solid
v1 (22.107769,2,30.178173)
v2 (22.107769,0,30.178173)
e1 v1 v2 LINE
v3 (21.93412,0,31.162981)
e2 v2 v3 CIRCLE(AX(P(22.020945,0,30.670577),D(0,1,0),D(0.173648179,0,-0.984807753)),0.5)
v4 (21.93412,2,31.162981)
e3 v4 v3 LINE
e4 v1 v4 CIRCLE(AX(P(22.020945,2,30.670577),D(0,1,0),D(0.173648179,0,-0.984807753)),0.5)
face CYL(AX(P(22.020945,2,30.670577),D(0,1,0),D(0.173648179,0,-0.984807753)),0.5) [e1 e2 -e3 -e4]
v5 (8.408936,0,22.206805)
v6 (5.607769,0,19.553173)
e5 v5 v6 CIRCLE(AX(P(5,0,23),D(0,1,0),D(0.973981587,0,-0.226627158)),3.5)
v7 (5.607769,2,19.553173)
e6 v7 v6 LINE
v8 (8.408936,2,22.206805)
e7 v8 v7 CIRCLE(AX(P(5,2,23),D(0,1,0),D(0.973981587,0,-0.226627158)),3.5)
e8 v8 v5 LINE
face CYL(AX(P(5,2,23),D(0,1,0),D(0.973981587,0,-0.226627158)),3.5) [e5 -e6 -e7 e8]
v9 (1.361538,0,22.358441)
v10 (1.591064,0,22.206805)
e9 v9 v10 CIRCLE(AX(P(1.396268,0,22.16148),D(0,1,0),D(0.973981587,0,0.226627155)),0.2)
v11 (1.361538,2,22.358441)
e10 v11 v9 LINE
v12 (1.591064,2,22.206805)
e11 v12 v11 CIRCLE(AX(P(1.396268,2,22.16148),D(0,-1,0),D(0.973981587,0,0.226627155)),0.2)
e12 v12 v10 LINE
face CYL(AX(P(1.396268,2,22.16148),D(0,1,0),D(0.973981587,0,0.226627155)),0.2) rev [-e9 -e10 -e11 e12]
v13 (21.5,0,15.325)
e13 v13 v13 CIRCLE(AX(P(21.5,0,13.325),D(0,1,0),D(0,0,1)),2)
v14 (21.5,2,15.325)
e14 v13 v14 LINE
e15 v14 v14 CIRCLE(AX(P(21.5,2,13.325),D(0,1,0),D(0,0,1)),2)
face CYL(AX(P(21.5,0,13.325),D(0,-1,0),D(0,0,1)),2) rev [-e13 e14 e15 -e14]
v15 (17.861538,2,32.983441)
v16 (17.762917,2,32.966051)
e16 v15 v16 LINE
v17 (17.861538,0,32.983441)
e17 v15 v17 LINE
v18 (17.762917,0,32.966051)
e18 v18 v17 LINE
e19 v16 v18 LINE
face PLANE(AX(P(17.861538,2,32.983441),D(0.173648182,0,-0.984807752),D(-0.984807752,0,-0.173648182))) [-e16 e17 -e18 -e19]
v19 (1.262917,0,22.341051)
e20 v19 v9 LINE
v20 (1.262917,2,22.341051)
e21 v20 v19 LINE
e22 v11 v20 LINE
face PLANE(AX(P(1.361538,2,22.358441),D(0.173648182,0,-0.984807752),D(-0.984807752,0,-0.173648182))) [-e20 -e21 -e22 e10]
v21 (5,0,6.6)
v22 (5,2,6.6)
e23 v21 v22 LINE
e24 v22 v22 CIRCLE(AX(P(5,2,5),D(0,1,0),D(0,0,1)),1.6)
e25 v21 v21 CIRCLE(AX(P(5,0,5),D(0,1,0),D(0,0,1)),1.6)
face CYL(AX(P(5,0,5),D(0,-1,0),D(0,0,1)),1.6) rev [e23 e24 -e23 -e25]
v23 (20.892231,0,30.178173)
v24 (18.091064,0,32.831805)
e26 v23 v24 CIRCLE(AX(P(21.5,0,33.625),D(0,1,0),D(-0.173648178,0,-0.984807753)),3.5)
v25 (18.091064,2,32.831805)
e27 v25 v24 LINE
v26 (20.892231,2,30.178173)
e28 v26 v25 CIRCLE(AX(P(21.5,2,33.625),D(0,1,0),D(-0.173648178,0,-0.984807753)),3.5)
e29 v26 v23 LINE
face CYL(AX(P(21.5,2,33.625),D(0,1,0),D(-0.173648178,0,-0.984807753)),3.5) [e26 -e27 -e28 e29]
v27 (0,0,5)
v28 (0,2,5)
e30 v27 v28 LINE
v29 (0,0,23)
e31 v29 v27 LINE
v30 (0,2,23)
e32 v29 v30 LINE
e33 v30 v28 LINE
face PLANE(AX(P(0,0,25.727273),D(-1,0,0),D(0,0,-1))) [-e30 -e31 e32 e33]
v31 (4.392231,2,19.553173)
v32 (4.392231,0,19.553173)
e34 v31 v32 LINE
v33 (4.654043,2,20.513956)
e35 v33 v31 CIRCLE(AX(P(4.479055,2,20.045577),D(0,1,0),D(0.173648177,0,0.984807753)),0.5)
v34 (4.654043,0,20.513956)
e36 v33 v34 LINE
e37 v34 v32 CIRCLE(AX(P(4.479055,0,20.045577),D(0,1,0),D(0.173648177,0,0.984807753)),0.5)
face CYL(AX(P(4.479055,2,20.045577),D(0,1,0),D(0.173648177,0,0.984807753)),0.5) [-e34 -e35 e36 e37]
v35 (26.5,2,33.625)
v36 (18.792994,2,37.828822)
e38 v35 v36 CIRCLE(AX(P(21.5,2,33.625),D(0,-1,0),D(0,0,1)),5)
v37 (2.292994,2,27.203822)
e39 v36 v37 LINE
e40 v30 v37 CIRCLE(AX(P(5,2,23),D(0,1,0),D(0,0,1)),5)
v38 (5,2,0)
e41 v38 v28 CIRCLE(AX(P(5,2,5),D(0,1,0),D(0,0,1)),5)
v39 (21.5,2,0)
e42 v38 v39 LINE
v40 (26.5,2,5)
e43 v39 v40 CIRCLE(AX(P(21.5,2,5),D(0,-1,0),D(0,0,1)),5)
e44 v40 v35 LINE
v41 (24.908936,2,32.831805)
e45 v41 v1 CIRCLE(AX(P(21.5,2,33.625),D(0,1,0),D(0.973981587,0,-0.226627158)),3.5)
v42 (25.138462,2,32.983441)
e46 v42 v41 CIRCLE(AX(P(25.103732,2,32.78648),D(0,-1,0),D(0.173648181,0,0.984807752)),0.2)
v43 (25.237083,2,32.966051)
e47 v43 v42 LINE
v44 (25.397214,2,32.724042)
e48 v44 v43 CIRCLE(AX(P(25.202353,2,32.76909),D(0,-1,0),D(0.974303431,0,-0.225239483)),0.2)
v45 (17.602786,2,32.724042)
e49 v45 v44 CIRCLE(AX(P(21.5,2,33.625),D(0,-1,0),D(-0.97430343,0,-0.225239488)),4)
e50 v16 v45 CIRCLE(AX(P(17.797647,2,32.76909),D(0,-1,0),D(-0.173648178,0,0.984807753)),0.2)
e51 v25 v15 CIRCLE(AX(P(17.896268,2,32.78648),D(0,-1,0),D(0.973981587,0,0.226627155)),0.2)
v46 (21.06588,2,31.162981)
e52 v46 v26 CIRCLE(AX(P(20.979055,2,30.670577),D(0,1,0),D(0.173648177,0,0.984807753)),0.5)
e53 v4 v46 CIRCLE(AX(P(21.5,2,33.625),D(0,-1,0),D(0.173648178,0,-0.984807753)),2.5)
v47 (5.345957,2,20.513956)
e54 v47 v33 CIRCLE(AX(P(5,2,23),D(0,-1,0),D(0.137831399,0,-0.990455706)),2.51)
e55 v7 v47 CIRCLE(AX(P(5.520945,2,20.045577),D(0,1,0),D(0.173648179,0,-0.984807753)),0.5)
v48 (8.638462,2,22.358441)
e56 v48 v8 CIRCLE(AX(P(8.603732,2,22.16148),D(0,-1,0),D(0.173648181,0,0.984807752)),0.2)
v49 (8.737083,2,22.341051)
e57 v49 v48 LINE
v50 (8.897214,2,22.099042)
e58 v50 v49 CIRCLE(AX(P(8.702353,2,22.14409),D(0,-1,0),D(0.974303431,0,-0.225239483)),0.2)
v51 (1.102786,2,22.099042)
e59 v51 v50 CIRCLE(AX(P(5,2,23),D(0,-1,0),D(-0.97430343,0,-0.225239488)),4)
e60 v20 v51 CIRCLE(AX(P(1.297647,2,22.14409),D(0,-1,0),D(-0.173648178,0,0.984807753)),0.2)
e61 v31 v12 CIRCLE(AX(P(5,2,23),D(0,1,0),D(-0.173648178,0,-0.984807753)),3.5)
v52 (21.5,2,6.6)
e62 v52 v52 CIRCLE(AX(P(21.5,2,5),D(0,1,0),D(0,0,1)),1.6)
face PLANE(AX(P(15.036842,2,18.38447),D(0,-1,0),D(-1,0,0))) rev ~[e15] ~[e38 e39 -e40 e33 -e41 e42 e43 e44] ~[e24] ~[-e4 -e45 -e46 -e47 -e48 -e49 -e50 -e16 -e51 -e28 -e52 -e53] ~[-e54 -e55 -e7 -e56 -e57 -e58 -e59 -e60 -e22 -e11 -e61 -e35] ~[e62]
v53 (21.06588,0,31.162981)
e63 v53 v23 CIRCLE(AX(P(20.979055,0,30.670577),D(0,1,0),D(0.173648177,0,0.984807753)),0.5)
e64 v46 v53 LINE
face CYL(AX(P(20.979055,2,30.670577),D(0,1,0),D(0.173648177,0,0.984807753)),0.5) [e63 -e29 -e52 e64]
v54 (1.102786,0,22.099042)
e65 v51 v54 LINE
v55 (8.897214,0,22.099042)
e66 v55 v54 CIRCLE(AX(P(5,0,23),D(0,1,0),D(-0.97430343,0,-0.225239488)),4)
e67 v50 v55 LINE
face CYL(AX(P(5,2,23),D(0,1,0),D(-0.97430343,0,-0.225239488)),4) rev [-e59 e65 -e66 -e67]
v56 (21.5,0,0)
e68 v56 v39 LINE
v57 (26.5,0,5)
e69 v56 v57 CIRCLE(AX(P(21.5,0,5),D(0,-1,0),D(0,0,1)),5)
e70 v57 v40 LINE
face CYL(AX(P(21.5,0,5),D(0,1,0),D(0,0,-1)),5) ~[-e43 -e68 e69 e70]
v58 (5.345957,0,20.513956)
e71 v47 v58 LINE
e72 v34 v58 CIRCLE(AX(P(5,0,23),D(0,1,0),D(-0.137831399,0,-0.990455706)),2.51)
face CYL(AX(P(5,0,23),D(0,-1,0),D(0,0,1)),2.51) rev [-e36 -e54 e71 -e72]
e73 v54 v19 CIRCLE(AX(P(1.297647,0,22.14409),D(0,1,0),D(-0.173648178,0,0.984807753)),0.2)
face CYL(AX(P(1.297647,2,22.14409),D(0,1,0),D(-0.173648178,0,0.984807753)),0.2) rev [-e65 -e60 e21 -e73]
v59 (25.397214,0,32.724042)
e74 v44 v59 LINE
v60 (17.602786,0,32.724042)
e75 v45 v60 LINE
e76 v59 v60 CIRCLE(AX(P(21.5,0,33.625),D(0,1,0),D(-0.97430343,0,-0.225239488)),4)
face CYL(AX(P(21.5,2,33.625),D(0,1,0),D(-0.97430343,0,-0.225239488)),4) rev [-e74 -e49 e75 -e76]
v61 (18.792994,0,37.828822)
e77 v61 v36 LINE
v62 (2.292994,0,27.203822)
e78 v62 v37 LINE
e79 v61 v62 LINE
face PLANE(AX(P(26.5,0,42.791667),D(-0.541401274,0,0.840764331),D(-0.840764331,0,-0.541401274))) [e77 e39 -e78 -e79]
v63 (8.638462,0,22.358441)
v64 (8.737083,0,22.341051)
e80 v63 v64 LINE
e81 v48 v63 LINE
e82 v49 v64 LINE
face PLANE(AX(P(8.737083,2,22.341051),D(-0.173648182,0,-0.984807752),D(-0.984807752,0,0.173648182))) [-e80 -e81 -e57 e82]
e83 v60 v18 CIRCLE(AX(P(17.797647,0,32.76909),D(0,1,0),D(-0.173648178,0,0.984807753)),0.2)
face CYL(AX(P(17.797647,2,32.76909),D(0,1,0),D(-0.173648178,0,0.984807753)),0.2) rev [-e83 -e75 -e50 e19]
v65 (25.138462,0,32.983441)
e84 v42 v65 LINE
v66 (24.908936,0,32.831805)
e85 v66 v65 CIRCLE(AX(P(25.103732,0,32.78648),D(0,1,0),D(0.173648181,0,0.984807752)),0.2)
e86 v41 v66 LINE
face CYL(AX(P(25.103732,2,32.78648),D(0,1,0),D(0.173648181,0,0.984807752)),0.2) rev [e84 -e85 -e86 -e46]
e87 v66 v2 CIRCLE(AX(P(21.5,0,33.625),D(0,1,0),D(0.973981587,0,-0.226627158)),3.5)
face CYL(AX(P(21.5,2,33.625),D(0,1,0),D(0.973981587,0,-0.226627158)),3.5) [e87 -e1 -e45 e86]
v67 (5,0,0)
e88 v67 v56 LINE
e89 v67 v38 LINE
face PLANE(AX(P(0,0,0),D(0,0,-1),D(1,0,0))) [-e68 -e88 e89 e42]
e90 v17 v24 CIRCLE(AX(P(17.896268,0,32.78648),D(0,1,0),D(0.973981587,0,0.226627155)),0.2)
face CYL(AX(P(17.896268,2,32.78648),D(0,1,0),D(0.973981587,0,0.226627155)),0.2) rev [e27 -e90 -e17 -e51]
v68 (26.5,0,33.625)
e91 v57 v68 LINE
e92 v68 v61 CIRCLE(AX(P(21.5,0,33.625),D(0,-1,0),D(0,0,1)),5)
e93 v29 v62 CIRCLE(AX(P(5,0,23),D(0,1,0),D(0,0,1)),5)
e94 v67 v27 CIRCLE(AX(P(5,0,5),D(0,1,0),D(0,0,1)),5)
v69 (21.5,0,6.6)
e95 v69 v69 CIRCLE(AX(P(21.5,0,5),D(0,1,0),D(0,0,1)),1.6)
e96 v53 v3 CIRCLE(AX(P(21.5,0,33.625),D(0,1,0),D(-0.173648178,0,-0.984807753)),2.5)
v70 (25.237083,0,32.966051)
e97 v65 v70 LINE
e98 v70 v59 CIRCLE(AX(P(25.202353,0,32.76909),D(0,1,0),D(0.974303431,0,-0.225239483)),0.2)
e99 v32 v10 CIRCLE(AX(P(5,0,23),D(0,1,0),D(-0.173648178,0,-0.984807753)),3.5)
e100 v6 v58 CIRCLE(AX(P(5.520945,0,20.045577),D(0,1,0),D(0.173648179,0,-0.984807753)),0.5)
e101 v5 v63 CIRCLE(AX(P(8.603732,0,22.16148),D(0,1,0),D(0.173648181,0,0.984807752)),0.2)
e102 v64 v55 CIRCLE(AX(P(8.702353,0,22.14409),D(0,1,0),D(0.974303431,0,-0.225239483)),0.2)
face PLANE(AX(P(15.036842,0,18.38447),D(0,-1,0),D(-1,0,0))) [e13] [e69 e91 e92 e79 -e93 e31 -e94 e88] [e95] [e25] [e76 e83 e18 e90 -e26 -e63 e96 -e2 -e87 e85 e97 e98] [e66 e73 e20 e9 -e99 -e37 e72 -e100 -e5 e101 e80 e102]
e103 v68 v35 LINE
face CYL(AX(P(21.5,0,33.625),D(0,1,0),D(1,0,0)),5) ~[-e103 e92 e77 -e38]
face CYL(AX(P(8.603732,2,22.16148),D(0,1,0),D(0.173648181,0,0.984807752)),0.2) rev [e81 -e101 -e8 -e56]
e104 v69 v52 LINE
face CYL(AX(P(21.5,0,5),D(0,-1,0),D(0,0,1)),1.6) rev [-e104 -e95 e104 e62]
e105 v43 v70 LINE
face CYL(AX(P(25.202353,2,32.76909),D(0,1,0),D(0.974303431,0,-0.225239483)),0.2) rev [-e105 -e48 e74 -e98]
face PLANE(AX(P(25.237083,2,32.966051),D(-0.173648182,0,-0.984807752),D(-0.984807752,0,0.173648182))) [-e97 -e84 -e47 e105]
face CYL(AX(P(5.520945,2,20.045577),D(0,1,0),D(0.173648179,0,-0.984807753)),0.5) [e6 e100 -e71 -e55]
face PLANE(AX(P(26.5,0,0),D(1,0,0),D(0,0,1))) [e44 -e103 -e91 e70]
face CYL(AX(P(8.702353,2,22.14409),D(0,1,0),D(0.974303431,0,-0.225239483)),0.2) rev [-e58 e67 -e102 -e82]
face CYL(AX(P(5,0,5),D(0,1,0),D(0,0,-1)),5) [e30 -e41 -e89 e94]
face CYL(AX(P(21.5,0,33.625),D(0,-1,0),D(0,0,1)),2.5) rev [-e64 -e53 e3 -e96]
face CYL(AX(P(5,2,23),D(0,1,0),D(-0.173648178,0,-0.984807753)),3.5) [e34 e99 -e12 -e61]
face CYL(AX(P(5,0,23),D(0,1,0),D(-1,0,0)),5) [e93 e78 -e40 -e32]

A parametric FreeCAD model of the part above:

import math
import FreeCAD as App
import Part
import Sketcher
Q = App.Units.Quantity


def edges_at(feature, points):
    """Names of the edges that pass closest to the given points."""
    edges = feature.Shape.Edges
    near = lambda p: min(range(len(edges)), key=lambda i: edges[i].distToShape(Part.Vertex(*p))[0])
    return sorted({f"Edge{near(p) + 1}" for p in points})


def add_polygon(sketch, points):
    """Adds a closed chain of lines whose ends are joined by coincident constraints."""
    first, n = sketch.GeometryCount, len(points)
    for a, b in zip(points, points[1:] + points[:1]):
        sketch.addGeometry(Part.LineSegment(App.Vector(*a, 0), App.Vector(*b, 0)), False)
    for i in range(n):
        sketch.addConstraint(Sketcher.Constraint("Coincident", first + i, 2, first + (i + 1) % n, 1))

doc = App.newDocument("Part")
body = doc.addObject("PartDesign::Body", "Body")

sketch1 = body.newObject("Sketcher::SketchObject", "Sketch")
sketch1.AttachmentSupport = (doc.getObject("XZ_Plane"), [""])
sketch1.MapMode = "FlatFace"
add_polygon(sketch1, [(26.5, 0), (0, 0), (0, 25.7), (26.5, 42.8)])
sketch1.addGeometry(Part.Circle(App.Vector(21.5, 33.6, 0), App.Vector(0, 0, 1), 2.5), False)
sketch1.addGeometry(Part.Circle(App.Vector(5, 23, 0), App.Vector(0, 0, 1), 2.5), False)
sketch1.addGeometry(Part.Circle(App.Vector(21.5, 13.3, 0), App.Vector(0, 0, 1), 2), False)
sketch1.addGeometry(Part.Circle(App.Vector(21.5, 5, 0), App.Vector(0, 0, 1), 1.6), False)
sketch1.addGeometry(Part.Circle(App.Vector(5, 5, 0), App.Vector(0, 0, 1), 1.6), False)
sketch1.addConstraint([
    Sketcher.Constraint("Horizontal", 0),
    Sketcher.Constraint("Vertical", 1),
    Sketcher.Constraint("Vertical", 3),
    Sketcher.Constraint("Coincident", 0, 2, -1, 1),
    Sketcher.Constraint("Equal", 7, 8),
    Sketcher.Constraint("Horizontal", 7, 3, 8, 3),
    Sketcher.Constraint("Vertical", 4, 3, 6, 3),
    Sketcher.Constraint("Vertical", 6, 3, 7, 3),
    Sketcher.Constraint("Vertical", 5, 3, 8, 3),
    Sketcher.Constraint("Diameter", 4, 5.0),
    Sketcher.Constraint("Diameter", 6, 4.0),
    Sketcher.Constraint("Diameter", 7, 3.2),
    Sketcher.Constraint("Diameter", 5, 5.02),
    Sketcher.Constraint("DistanceX", 0, 2, 0, 1, 26.5),
    Sketcher.Constraint("DistanceX", -1, 1, 5, 3, 5.0),
    Sketcher.Constraint("DistanceY", -1, 1, 5, 3, 23.0),
    Sketcher.Constraint("DistanceY", -1, 1, 7, 3, 5.0),
    Sketcher.Constraint("DistanceX", 4, 3, 2, 2, 5.0),
    Sketcher.Constraint("DistanceY", 6, 3, 4, 3, 20.3),
    Sketcher.Constraint("DistanceY", -1, 1, 4, 3, 33.625),
    Sketcher.Constraint("Distance", 2, 31.518939),
    Sketcher.Constraint("DistanceY", 1, 1, 1, 2, 25.727273),
])
pad1 = body.newObject("PartDesign::Pad", "Pad")
pad1.Profile = sketch1
pad1.Length = 2
pad1.Reversed = True
doc.recompute()

fillet = body.newObject("PartDesign::Fillet", "Fillet")
fillet.Base = (pad1, edges_at(pad1, [
    (0, 1, 0),
    (26.5, 1, 0),
    (26.5, 1, 42.792),
    (0, 1, 25.727),
]))
fillet.Radius = 5

sketch2 = body.newObject("Sketcher::SketchObject", "Sketch001")
sketch2.AttachmentSupport = (doc.getObject("XZ_Plane"), [""])
sketch2.MapMode = "FlatFace"
sketch2.AttachmentOffset = App.Placement(App.Vector(0, 0, -2), App.Rotation())
sketch2.addGeometry([
    Part.LineSegment(App.Vector(17.76, 32.97, 0), App.Vector(17.86, 32.98, 0)),
    Part.ArcOfCircle(Part.Circle(App.Vector(17.9, 32.79, 0), App.Vector(0, 0, 1), 0.2), math.radians(13), math.radians(100)),
    Part.ArcOfCircle(Part.Circle(App.Vector(21.5, 33.63, 0), App.Vector(0, 0, 1), 3.5), math.radians(-167), math.radians(-100)),
    Part.ArcOfCircle(Part.Circle(App.Vector(20.98, 30.67, 0), App.Vector(0, 0, 1), 0.5), math.radians(-100), math.radians(80)),
    Part.ArcOfCircle(Part.Circle(App.Vector(21.5, 33.63, 0), App.Vector(0, 0, 1), 2.5), math.radians(-100), math.radians(-80)),
    Part.ArcOfCircle(Part.Circle(App.Vector(22.02, 30.67, 0), App.Vector(0, 0, 1), 0.5), math.radians(100), math.radians(280)),
    Part.ArcOfCircle(Part.Circle(App.Vector(21.5, 33.63, 0), App.Vector(0, 0, 1), 3.5), math.radians(-80), math.radians(-13)),
    Part.ArcOfCircle(Part.Circle(App.Vector(25.1, 32.79, 0), App.Vector(0, 0, 1), 0.2), math.radians(80), math.radians(167)),
    Part.LineSegment(App.Vector(25.14, 32.98, 0), App.Vector(25.24, 32.97, 0)),
    Part.ArcOfCircle(Part.Circle(App.Vector(25.2, 32.77, 0), App.Vector(0, 0, 1), 0.2), math.radians(-13), math.radians(80)),
    Part.ArcOfCircle(Part.Circle(App.Vector(21.5, 33.62, 0), App.Vector(0, 0, 1), 4), math.radians(-167), math.radians(-13)),
    Part.ArcOfCircle(Part.Circle(App.Vector(17.8, 32.77, 0), App.Vector(0, 0, 1), 0.2), math.radians(100), math.radians(193)),
    Part.LineSegment(App.Vector(1.26, 22.34, 0), App.Vector(1.36, 22.36, 0)),
    Part.ArcOfCircle(Part.Circle(App.Vector(1.4, 22.16, 0), App.Vector(0, 0, 1), 0.2), math.radians(13), math.radians(100)),
    Part.ArcOfCircle(Part.Circle(App.Vector(5, 23, 0), App.Vector(0, 0, 1), 3.5), math.radians(-167), math.radians(-100)),
    Part.ArcOfCircle(Part.Circle(App.Vector(4.48, 20.05, 0), App.Vector(0, 0, 1), 0.5), math.radians(-100), math.radians(80)),
    Part.ArcOfCircle(Part.Circle(App.Vector(5, 23, 0), App.Vector(0, 0, 1), 2.5), math.radians(-100), math.radians(-80)),
    Part.ArcOfCircle(Part.Circle(App.Vector(5.52, 20.05, 0), App.Vector(0, 0, 1), 0.5), math.radians(100), math.radians(280)),
    Part.ArcOfCircle(Part.Circle(App.Vector(5, 23, 0), App.Vector(0, 0, 1), 3.5), math.radians(-80), math.radians(-13)),
    Part.ArcOfCircle(Part.Circle(App.Vector(8.6, 22.16, 0), App.Vector(0, 0, 1), 0.2), math.radians(80), math.radians(167)),
    Part.LineSegment(App.Vector(8.64, 22.36, 0), App.Vector(8.74, 22.34, 0)),
    Part.ArcOfCircle(Part.Circle(App.Vector(8.7, 22.14, 0), App.Vector(0, 0, 1), 0.2), math.radians(-13), math.radians(80)),
    Part.ArcOfCircle(Part.Circle(App.Vector(5, 23, 0), App.Vector(0, 0, 1), 4), math.radians(-167), math.radians(-13)),
    Part.ArcOfCircle(Part.Circle(App.Vector(1.3, 22.14, 0), App.Vector(0, 0, 1), 0.2), math.radians(100), math.radians(193)),
], False)
sketch2.addConstraint([
    Sketcher.Constraint("Tangent", 0, 2, 1, 2),
    Sketcher.Constraint("Tangent", 1, 1, 2, 1),
    Sketcher.Constraint("Tangent", 2, 2, 3, 1),
    Sketcher.Constraint("Tangent", 3, 2, 4, 1),
    Sketcher.Constraint("Tangent", 4, 2, 5, 1),
    Sketcher.Constraint("Tangent", 5, 2, 6, 1),
    Sketcher.Constraint("Tangent", 6, 2, 7, 2),
    Sketcher.Constraint("Tangent", 7, 1, 8, 1),
    Sketcher.Constraint("Tangent", 8, 2, 9, 2),
    Sketcher.Constraint("Tangent", 9, 1, 10, 2),
    Sketcher.Constraint("Tangent", 10, 1, 11, 2),
    Sketcher.Constraint("Tangent", 11, 1, 0, 1),
    Sketcher.Constraint("Tangent", 12, 2, 13, 2),
    Sketcher.Constraint("Tangent", 13, 1, 14, 1),
    Sketcher.Constraint("Tangent", 14, 2, 15, 1),
    Sketcher.Constraint("Tangent", 15, 2, 16, 1),
    Sketcher.Constraint("Tangent", 16, 2, 17, 1),
    Sketcher.Constraint("Tangent", 17, 2, 18, 1),
    Sketcher.Constraint("Tangent", 18, 2, 19, 2),
    Sketcher.Constraint("Tangent", 19, 1, 20, 1),
    Sketcher.Constraint("Tangent", 20, 2, 21, 2),
    Sketcher.Constraint("Tangent", 21, 1, 22, 2),
    Sketcher.Constraint("Tangent", 22, 1, 23, 2),
    Sketcher.Constraint("Tangent", 23, 1, 12, 1),
    Sketcher.Constraint("Coincident", 4, 3, 2, 3),
    Sketcher.Constraint("Coincident", 6, 3, 2, 3),
    Sketcher.Constraint("Coincident", 10, 3, 2, 3),
    Sketcher.Constraint("Coincident", 16, 3, 14, 3),
    Sketcher.Constraint("Coincident", 18, 3, 14, 3),
    Sketcher.Constraint("Coincident", 22, 3, 14, 3),
    Sketcher.Constraint("Equal", 3, 5),
    Sketcher.Constraint("Equal", 1, 7),
    Sketcher.Constraint("Equal", 7, 9),
    Sketcher.Constraint("Equal", 9, 11),
    Sketcher.Constraint("Equal", 11, 13),
    Sketcher.Constraint("Equal", 6, 14),
    Sketcher.Constraint("Equal", 5, 15),
    Sketcher.Constraint("Equal", 15, 17),
    Sketcher.Constraint("Equal", 13, 19),
    Sketcher.Constraint("Equal", 19, 21),
    Sketcher.Constraint("Equal", 10, 22),
    Sketcher.Constraint("Equal", 21, 23),
    Sketcher.Constraint("Parallel", 0, 12),
    Sketcher.Constraint("Parallel", 8, 20),
    Sketcher.Constraint("Horizontal", 3, 3, 5, 3),
    Sketcher.Constraint("Horizontal", 1, 3, 7, 3),
    Sketcher.Constraint("Horizontal", 9, 3, 11, 3),
    Sketcher.Constraint("Horizontal", 15, 3, 17, 3),
    Sketcher.Constraint("Horizontal", 13, 3, 19, 3),
    Sketcher.Constraint("Radius", 10, 4.0),
    Sketcher.Constraint("Radius", 1, 0.2),
    Sketcher.Constraint("Radius", 2, 3.5),
    Sketcher.Constraint("Radius", 3, 0.5),
    Sketcher.Constraint("Angle", 0, Q("10 deg")),
    Sketcher.Constraint("DistanceX", -1, 1, 14, 3, 5.0),
    Sketcher.Constraint("DistanceY", -1, 1, 14, 3, 23.0),
    Sketcher.Constraint("DistanceX", -1, 1, 2, 3, 21.5),
    Sketcher.Constraint("DistanceX", 13, 3, 1, 3, 16.5),
    Sketcher.Constraint("DistanceX", 15, 3, 3, 3, 16.5),
    Sketcher.Constraint("DistanceY", -1, 1, 2, 3, 33.625),
    Sketcher.Constraint("DistanceY", 9, 1, 7, 1, 0.259399),
    Sketcher.Constraint("DistanceX", -1, 1, 2, 2, 20.892231),
])
pocket1 = body.newObject("PartDesign::Pocket", "Pocket")
pocket1.Profile = sketch2
pocket1.Type = "ThroughAll"
pocket1.Reversed = True

doc.recompute()
